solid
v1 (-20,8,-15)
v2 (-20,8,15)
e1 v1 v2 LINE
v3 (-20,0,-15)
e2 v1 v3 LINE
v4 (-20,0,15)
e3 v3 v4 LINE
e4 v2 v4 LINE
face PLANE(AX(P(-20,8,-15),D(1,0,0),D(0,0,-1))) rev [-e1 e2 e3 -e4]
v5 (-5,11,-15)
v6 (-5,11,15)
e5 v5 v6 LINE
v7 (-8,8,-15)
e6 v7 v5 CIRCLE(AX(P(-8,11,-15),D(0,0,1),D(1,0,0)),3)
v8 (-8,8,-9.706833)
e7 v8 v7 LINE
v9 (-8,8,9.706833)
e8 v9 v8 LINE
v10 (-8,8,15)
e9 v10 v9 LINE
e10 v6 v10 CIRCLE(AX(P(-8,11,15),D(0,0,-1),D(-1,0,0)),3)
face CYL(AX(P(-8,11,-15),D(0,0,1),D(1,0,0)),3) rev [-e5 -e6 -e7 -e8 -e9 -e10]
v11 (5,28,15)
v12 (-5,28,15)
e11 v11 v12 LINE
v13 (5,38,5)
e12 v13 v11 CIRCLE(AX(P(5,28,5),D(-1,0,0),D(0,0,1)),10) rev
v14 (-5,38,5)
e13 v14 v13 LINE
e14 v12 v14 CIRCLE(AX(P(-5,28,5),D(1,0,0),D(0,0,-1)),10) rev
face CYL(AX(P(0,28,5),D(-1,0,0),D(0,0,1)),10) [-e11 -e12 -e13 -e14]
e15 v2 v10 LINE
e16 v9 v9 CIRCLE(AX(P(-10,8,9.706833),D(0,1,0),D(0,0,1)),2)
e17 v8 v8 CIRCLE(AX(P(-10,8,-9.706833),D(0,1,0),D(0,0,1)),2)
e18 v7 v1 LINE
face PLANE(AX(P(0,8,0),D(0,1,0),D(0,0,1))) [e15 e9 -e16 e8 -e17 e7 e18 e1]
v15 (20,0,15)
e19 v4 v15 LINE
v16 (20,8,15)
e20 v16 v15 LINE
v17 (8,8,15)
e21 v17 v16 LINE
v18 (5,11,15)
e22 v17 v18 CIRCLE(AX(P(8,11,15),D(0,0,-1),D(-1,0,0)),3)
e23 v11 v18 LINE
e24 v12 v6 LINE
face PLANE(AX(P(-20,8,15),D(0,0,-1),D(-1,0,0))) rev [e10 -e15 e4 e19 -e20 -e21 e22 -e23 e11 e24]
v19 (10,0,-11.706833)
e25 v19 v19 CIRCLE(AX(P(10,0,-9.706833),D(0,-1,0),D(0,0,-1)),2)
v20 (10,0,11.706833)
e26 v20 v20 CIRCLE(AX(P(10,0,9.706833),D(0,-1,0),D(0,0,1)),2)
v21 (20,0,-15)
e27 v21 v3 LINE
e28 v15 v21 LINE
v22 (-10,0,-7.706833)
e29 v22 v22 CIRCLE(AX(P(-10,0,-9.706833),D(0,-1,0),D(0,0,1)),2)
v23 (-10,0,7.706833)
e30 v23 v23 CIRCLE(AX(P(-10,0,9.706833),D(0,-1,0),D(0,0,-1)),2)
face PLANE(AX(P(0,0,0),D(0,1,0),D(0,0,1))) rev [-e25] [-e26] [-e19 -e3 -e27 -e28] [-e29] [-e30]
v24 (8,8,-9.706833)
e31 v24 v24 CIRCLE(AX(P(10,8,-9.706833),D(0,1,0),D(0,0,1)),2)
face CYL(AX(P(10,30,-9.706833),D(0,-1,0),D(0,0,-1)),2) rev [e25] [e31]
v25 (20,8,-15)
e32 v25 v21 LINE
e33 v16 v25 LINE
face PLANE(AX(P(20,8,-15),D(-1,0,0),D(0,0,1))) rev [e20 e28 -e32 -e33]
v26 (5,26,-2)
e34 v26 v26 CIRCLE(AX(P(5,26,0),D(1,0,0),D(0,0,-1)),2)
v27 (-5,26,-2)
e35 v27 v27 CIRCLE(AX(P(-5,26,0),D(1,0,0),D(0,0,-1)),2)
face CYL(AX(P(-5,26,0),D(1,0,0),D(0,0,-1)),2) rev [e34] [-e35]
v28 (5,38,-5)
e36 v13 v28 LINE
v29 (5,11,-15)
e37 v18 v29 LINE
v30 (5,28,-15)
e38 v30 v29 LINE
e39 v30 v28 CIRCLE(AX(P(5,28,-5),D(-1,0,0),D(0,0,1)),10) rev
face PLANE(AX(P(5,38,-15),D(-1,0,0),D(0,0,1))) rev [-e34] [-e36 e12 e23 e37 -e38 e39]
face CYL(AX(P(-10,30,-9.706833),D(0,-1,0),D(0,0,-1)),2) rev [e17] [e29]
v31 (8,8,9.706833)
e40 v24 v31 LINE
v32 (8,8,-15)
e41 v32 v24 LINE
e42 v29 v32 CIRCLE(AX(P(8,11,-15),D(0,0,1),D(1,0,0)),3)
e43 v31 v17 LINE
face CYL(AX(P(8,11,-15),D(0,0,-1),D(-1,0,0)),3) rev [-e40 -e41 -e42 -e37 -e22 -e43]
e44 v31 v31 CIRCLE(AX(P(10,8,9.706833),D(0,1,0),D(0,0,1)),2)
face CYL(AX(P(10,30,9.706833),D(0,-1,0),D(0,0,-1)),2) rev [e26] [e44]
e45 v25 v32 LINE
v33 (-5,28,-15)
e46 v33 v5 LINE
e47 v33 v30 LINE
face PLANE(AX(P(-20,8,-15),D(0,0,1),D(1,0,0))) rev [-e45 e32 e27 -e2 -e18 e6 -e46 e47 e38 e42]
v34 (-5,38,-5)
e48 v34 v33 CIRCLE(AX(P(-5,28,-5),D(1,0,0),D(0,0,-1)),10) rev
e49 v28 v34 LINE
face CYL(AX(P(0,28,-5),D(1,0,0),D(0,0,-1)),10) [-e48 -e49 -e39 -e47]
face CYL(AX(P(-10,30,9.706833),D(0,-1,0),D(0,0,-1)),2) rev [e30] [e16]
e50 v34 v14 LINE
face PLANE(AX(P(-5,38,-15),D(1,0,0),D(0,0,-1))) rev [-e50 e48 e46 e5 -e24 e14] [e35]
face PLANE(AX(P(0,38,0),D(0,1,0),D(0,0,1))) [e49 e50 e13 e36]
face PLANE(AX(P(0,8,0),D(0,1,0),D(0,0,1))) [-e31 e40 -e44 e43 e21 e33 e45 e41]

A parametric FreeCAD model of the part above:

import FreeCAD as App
import Part
import Sketcher
Q = App.Units.Quantity


def edges_at(feature, points):
    """Names of the edges that pass closest to the given points."""
    edges = feature.Shape.Edges
    near = lambda p: min(range(len(edges)), key=lambda i: edges[i].distToShape(Part.Vertex(*p))[0])
    return sorted({f"Edge{near(p) + 1}" for p in points})

doc = App.newDocument("Part")
params = doc.addObject("Spreadsheet::Sheet", "Params")
for row, (alias, value) in enumerate([
    ("sketch1_width", "40 mm"),
    ("sketch1_height", "30 mm"),
    ("pad1_length", "8 mm"),
    ("sketch2_width", "10 mm"),
    ("sketch2_height", "30 mm"),
    ("pad2_length", "30 mm"),
    ("fillet_radius", "3 mm"),
    ("sketch3_diameter", "4 mm"),
    ("pocket1_length", "30 mm"),
    ("sketch4_diameter", "4 mm"),
    ("pocket2_length", "10 mm"),
    ("fillet2_radius", "10 mm"),
], start=1):
    params.set(f"A{row}", alias)
    params.set(f"B{row}", "=" + value)
    params.setAlias(f"B{row}", alias)

body = doc.addObject("PartDesign::Body", "Body")

# Sketch on XZ plane
sketch1 = body.newObject("Sketcher::SketchObject", "Sketch")
sketch1.AttachmentSupport = (doc.getObject("XZ_Plane"), [""])
sketch1.MapMode = "FlatFace"
sketch1.addGeometry(Part.LineSegment(App.Vector(-20, -15, 0), App.Vector(-20, 15, 0)), False)
sketch1.addGeometry(Part.LineSegment(App.Vector(-20, 15, 0), App.Vector(20, 15, 0)), False)
sketch1.addGeometry(Part.LineSegment(App.Vector(20, 15, 0), App.Vector(20, -15, 0)), False)
sketch1.addGeometry(Part.LineSegment(App.Vector(20, -15, 0), App.Vector(-20, -15, 0)), False)
sketch1.addConstraint(Sketcher.Constraint("Coincident", 0, 2, 1, 1))
sketch1.addConstraint(Sketcher.Constraint("Coincident", 1, 2, 2, 1))
sketch1.addConstraint(Sketcher.Constraint("Coincident", 2, 2, 3, 1))
sketch1.addConstraint(Sketcher.Constraint("Coincident", 3, 2, 0, 1))
sketch1.addConstraint(Sketcher.Constraint("Vertical", 0))
sketch1.addConstraint(Sketcher.Constraint("Horizontal", 1))
sketch1.addConstraint(Sketcher.Constraint("Vertical", 2))
sketch1.addConstraint(Sketcher.Constraint("Horizontal", 3))
sketch1.addConstraint(Sketcher.Constraint("Symmetric", 0, 2, 2, 2, -1, 1))
sketch1.addConstraint(Sketcher.Constraint("DistanceX", 1, 1, 1, 2, Q("40 mm")))
sketch1.addConstraint(Sketcher.Constraint("DistanceY", 0, 1, 0, 2, Q("30 mm")))
sketch1.setExpression("Constraints[9]", "Params.sketch1_width")
sketch1.setExpression("Constraints[10]", "Params.sketch1_height")
pad1 = body.newObject("PartDesign::Pad", "Pad")
pad1.Profile = sketch1
pad1.setExpression("Length", "Params.pad1_length")
pad1.Reversed = True

# Sketch on XZ plane
sketch2 = body.newObject("Sketcher::SketchObject", "Sketch001")
sketch2.AttachmentSupport = (doc.getObject("XZ_Plane"), [""])
sketch2.MapMode = "FlatFace"
sketch2.AttachmentOffset = App.Placement(App.Vector(0, 0, -8), App.Rotation())
sketch2.addGeometry(Part.LineSegment(App.Vector(-5, -15, 0), App.Vector(-5, 15, 0)), False)
sketch2.addGeometry(Part.LineSegment(App.Vector(-5, 15, 0), App.Vector(5, 15, 0)), False)
sketch2.addGeometry(Part.LineSegment(App.Vector(5, 15, 0), App.Vector(5, -15, 0)), False)
sketch2.addGeometry(Part.LineSegment(App.Vector(5, -15, 0), App.Vector(-5, -15, 0)), False)
sketch2.addConstraint(Sketcher.Constraint("Coincident", 0, 2, 1, 1))
sketch2.addConstraint(Sketcher.Constraint("Coincident", 1, 2, 2, 1))
sketch2.addConstraint(Sketcher.Constraint("Coincident", 2, 2, 3, 1))
sketch2.addConstraint(Sketcher.Constraint("Coincident", 3, 2, 0, 1))
sketch2.addConstraint(Sketcher.Constraint("Vertical", 0))
sketch2.addConstraint(Sketcher.Constraint("Horizontal", 1))
sketch2.addConstraint(Sketcher.Constraint("Vertical", 2))
sketch2.addConstraint(Sketcher.Constraint("Horizontal", 3))
sketch2.addConstraint(Sketcher.Constraint("Symmetric", 0, 2, 2, 2, -1, 1))
sketch2.addConstraint(Sketcher.Constraint("DistanceX", 1, 1, 1, 2, Q("10 mm")))
sketch2.addConstraint(Sketcher.Constraint("DistanceY", 0, 1, 0, 2, Q("30 mm")))
sketch2.setExpression("Constraints[9]", "Params.sketch2_width")
sketch2.setExpression("Constraints[10]", "Params.sketch2_height")
pad2 = body.newObject("PartDesign::Pad", "Pad001")
pad2.Profile = sketch2
pad2.setExpression("Length", "Params.pad2_length")
pad2.Reversed = True
doc.recompute()

fillet = body.newObject("PartDesign::Fillet", "Fillet")
fillet.Base = (pad2, edges_at(pad2, [(5, 8, 0), (-5, 8, 0)]))
fillet.setExpression("Radius", "Params.fillet_radius")

# Sketch on XZ plane
sketch3 = body.newObject("Sketcher::SketchObject", "Sketch002")
sketch3.AttachmentSupport = (doc.getObject("XZ_Plane"), [""])
sketch3.MapMode = "FlatFace"
sketch3.addGeometry(Part.Circle(App.Vector(-10, 9.7, 0), App.Vector(0, 0, 1), 2), False)
sketch3.addGeometry(Part.Circle(App.Vector(10, 9.7, 0), App.Vector(0, 0, 1), 2), False)
sketch3.addGeometry(Part.Circle(App.Vector(10, -9.7, 0), App.Vector(0, 0, 1), 2), False)
sketch3.addGeometry(Part.Circle(App.Vector(-10, -9.7, 0), App.Vector(0, 0, 1), 2), False)
sketch3.addConstraint(Sketcher.Constraint("Equal", 0, 1))
sketch3.addConstraint(Sketcher.Constraint("Equal", 1, 2))
sketch3.addConstraint(Sketcher.Constraint("Equal", 2, 3))
sketch3.addConstraint(Sketcher.Constraint("Symmetric", 0, 3, 2, 3, -1, 1))
sketch3.addConstraint(Sketcher.Constraint("Symmetric", 1, 3, 3, 3, -1, 1))
sketch3.addConstraint(Sketcher.Constraint("Symmetric", 0, 3, 1, 3, -2))
sketch3.addConstraint(Sketcher.Constraint("Diameter", 0, Q("4 mm")))
sketch3.addConstraint(Sketcher.Constraint("DistanceX", 0, 3, -1, 1, Q("10 mm")))
sketch3.addConstraint(Sketcher.Constraint("DistanceY", -1, 1, 0, 3, Q("9.706833 mm")))
sketch3.setExpression("Constraints[6]", "Params.sketch3_diameter")
pocket1 = body.newObject("PartDesign::Pocket", "Pocket")
pocket1.Profile = sketch3
pocket1.setExpression("Length", "Params.pocket1_length")

# Sketch on YZ plane
sketch4 = body.newObject("Sketcher::SketchObject", "Sketch003")
sketch4.AttachmentSupport = (doc.getObject("YZ_Plane"), [""])
sketch4.MapMode = "FlatFace"
sketch4.AttachmentOffset = App.Placement(App.Vector(0, 0, 5), App.Rotation())
sketch4.addGeometry(Part.Circle(App.Vector(26, 0, 0), App.Vector(0, 0, 1), 2), False)
sketch4.addConstraint(Sketcher.Constraint("PointOnObject", 0, 3, -1))
sketch4.addConstraint(Sketcher.Constraint("Diameter", 0, Q("4 mm")))
sketch4.addConstraint(Sketcher.Constraint("DistanceX", -1, 1, 0, 3, Q("26 mm")))
sketch4.setExpression("Constraints[1]", "Params.sketch4_diameter")
pocket2 = body.newObject("PartDesign::Pocket", "Pocket001")
pocket2.Profile = sketch4
pocket2.setExpression("Length", "Params.pocket2_length")
doc.recompute()

fillet2 = body.newObject("PartDesign::Fillet", "Fillet001")
fillet2.Base = (pocket2, edges_at(pocket2, [(0, 38, -15), (0, 38, 15)]))
fillet2.setExpression("Radius", "Params.fillet2_radius")

doc.recompute()
